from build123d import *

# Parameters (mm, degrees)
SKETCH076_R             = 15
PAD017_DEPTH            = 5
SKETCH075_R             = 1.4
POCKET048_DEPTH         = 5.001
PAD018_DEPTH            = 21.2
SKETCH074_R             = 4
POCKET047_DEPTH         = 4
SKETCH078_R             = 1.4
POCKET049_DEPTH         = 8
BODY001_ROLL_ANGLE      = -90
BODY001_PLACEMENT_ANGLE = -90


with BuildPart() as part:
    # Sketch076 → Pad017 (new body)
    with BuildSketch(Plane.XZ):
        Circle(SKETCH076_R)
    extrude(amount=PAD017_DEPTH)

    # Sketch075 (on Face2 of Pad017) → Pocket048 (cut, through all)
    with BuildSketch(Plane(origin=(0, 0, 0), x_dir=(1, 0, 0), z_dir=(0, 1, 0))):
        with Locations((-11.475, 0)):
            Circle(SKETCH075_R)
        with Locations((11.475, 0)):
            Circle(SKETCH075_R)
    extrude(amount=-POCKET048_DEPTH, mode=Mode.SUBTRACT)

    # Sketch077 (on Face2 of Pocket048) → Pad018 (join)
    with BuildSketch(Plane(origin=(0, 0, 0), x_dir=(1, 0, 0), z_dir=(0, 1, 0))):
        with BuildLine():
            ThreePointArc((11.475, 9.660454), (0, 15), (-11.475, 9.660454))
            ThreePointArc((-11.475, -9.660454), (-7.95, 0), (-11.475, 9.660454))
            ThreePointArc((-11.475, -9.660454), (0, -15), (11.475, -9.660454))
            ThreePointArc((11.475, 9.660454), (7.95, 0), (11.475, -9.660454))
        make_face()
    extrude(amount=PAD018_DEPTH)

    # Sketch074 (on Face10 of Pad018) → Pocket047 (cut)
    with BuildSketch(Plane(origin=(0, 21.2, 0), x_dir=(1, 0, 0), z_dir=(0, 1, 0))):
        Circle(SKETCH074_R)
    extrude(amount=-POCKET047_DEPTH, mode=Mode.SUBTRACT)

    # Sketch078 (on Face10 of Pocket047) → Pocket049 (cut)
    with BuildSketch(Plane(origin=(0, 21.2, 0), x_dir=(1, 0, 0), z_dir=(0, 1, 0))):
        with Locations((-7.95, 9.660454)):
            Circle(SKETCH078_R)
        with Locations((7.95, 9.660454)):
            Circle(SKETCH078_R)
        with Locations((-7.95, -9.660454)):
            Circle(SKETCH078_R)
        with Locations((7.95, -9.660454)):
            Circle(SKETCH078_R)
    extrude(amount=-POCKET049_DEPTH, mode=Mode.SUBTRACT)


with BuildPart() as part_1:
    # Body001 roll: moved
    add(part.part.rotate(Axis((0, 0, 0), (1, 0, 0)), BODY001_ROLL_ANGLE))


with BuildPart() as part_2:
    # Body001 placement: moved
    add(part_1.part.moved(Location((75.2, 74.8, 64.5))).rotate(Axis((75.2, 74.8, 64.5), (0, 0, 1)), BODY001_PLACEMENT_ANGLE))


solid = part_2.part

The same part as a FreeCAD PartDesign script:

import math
import FreeCAD as App
import Part
import Sketcher
Q = App.Units.Quantity

doc = App.newDocument("Part")
body = doc.addObject("PartDesign::Body", "Body")

# Sketch on XZ plane
sketch1 = body.newObject("Sketcher::SketchObject", "Sketch")
sketch1.AttachmentSupport = (doc.getObject("XZ_Plane"), [""])
sketch1.MapMode = "FlatFace"
sketch1.addGeometry(Part.Circle(App.Vector(0, 0, 0), App.Vector(0, 0, 1), 15), False)
sketch1.addConstraint([
    Sketcher.Constraint("Coincident", 0, 3, -1, 1),
    Sketcher.Constraint("Diameter", 0, Q("30 mm")),
])
pad1 = body.newObject("PartDesign::Pad", "Pad")
pad1.Profile = sketch1
pad1.Length = 5

# Sketch on XZ plane
sketch2 = body.newObject("Sketcher::SketchObject", "Sketch001")
sketch2.AttachmentSupport = (doc.getObject("XZ_Plane"), [""])
sketch2.MapMode = "FlatFace"
sketch2.addGeometry([
    Part.Circle(App.Vector(-11.5, 0, 0), App.Vector(0, 0, 1), 1.4),
    Part.Circle(App.Vector(11.5, 0, 0), App.Vector(0, 0, 1), 1.4),
], False)
sketch2.addConstraint([
    Sketcher.Constraint("Equal", 0, 1),
    Sketcher.Constraint("Symmetric", 0, 3, 1, 3, -1, 1),
    Sketcher.Constraint("PointOnObject", 0, 3, -1),
    Sketcher.Constraint("Diameter", 0, Q("2.8 mm")),
    Sketcher.Constraint("DistanceX", 0, 3, 1, 3, Q("22.95 mm")),
])
pocket1 = body.newObject("PartDesign::Pocket", "Pocket")
pocket1.Profile = sketch2
pocket1.Type = "ThroughAll"
pocket1.Reversed = True

# Sketch on XZ plane
sketch3 = body.newObject("Sketcher::SketchObject", "Sketch002")
sketch3.AttachmentSupport = (doc.getObject("XZ_Plane"), [""])
sketch3.MapMode = "FlatFace"
sketch3.addGeometry([
    Part.ArcOfCircle(Part.Circle(App.Vector(0, 0, 0), App.Vector(0, 0, 1), 15), math.radians(-140), math.radians(-40)),
    Part.ArcOfCircle(Part.Circle(App.Vector(-23, 0, 0), App.Vector(0, 0, 1), 15), math.radians(-40), math.radians(40)),
    Part.ArcOfCircle(Part.Circle(App.Vector(0, 0, 0), App.Vector(0, 0, 1), 15), math.radians(40), math.radians(140)),
    Part.ArcOfCircle(Part.Circle(App.Vector(23, 0, 0), App.Vector(0, 0, 1), 15), math.radians(140), math.radians(220)),
], False)
sketch3.addConstraint([
    Sketcher.Constraint("Coincident", 0, 1, 1, 1),
    Sketcher.Constraint("Coincident", 1, 2, 2, 2),
    Sketcher.Constraint("Coincident", 2, 1, 3, 1),
    Sketcher.Constraint("Coincident", 3, 2, 0, 2),
    Sketcher.Constraint("Coincident", 0, 3, -1, 1),
    Sketcher.Constraint("Coincident", 2, 3, -1, 1),
    Sketcher.Constraint("Equal", 0, 1),
    Sketcher.Constraint("Equal", 1, 2),
    Sketcher.Constraint("Equal", 2, 3),
    Sketcher.Constraint("Symmetric", 1, 3, 3, 3, -1, 1),
    Sketcher.Constraint("PointOnObject", 1, 3, -1),
    Sketcher.Constraint("Radius", 0, Q("15 mm")),
    Sketcher.Constraint("DistanceX", 1, 3, 3, 3, Q("45.899999 mm")),
])
pad2 = body.newObject("PartDesign::Pad", "Pad001")
pad2.Profile = sketch3
pad2.Length = 21.2
pad2.Reversed = True

# Sketch on XZ plane
sketch4 = body.newObject("Sketcher::SketchObject", "Sketch003")
sketch4.AttachmentSupport = (doc.getObject("XZ_Plane"), [""])
sketch4.MapMode = "FlatFace"
sketch4.AttachmentOffset = App.Placement(App.Vector(0, 0, -21.2), App.Rotation())
sketch4.addGeometry(Part.Circle(App.Vector(0, 0, 0), App.Vector(0, 0, 1), 4), False)
sketch4.addConstraint([
    Sketcher.Constraint("Coincident", 0, 3, -1, 1),
    Sketcher.Constraint("Diameter", 0, Q("8 mm")),
])
pocket2 = body.newObject("PartDesign::Pocket", "Pocket001")
pocket2.Profile = sketch4
pocket2.Length = 4
pocket2.Reversed = True

# Sketch on XZ plane
sketch5 = body.newObject("Sketcher::SketchObject", "Sketch004")
sketch5.AttachmentSupport = (doc.getObject("XZ_Plane"), [""])
sketch5.MapMode = "FlatFace"
sketch5.AttachmentOffset = App.Placement(App.Vector(0, 0, -21.2), App.Rotation())
sketch5.addGeometry([
    Part.Circle(App.Vector(-8, -9.7, 0), App.Vector(0, 0, 1), 1.4),
    Part.Circle(App.Vector(8, -9.7, 0), App.Vector(0, 0, 1), 1.4),
    Part.Circle(App.Vector(-8, 9.7, 0), App.Vector(0, 0, 1), 1.4),
    Part.Circle(App.Vector(8, 9.7, 0), App.Vector(0, 0, 1), 1.4),
], False)
sketch5.addConstraint([
    Sketcher.Constraint("Equal", 0, 1),
    Sketcher.Constraint("Equal", 1, 2),
    Sketcher.Constraint("Equal", 2, 3),
    Sketcher.Constraint("Symmetric", 1, 3, 2, 3, -1, 1),
    Sketcher.Constraint("Symmetric", 0, 3, 3, 3, -1, 1),
    Sketcher.Constraint("Symmetric", 0, 3, 1, 3, -2),
    Sketcher.Constraint("Diameter", 0, Q("2.8 mm")),
    Sketcher.Constraint("DistanceX", 0, 3, 1, 3, Q("15.9 mm")),
    Sketcher.Constraint("DistanceY", 0, 3, -1, 1, Q("9.660454 mm")),
])
pocket3 = body.newObject("PartDesign::Pocket", "Pocket002")
pocket3.Profile = sketch5
pocket3.Length = 8
pocket3.Reversed = True
body2 = doc.addObject("PartDesign::Body", "Body001")
doc.recompute()

body.Placement = App.Placement(App.Vector(0, 0, 0), App.Rotation(App.Vector(1, 0, 0), 270))
boolean = body2.newObject("PartDesign::Boolean", "Boolean")
boolean.Type = "Fuse"
boolean.addObjects([body])
body3 = doc.addObject("PartDesign::Body", "Body002")
doc.recompute()

body2.Placement = App.Placement(App.Vector(75.2, 74.8, 64.5), App.Rotation(App.Vector(0, 0, 1), 270))
boolean2 = body3.newObject("PartDesign::Boolean", "Boolean001")
boolean2.Type = "Fuse"
boolean2.addObjects([body2])

doc.recompute()
